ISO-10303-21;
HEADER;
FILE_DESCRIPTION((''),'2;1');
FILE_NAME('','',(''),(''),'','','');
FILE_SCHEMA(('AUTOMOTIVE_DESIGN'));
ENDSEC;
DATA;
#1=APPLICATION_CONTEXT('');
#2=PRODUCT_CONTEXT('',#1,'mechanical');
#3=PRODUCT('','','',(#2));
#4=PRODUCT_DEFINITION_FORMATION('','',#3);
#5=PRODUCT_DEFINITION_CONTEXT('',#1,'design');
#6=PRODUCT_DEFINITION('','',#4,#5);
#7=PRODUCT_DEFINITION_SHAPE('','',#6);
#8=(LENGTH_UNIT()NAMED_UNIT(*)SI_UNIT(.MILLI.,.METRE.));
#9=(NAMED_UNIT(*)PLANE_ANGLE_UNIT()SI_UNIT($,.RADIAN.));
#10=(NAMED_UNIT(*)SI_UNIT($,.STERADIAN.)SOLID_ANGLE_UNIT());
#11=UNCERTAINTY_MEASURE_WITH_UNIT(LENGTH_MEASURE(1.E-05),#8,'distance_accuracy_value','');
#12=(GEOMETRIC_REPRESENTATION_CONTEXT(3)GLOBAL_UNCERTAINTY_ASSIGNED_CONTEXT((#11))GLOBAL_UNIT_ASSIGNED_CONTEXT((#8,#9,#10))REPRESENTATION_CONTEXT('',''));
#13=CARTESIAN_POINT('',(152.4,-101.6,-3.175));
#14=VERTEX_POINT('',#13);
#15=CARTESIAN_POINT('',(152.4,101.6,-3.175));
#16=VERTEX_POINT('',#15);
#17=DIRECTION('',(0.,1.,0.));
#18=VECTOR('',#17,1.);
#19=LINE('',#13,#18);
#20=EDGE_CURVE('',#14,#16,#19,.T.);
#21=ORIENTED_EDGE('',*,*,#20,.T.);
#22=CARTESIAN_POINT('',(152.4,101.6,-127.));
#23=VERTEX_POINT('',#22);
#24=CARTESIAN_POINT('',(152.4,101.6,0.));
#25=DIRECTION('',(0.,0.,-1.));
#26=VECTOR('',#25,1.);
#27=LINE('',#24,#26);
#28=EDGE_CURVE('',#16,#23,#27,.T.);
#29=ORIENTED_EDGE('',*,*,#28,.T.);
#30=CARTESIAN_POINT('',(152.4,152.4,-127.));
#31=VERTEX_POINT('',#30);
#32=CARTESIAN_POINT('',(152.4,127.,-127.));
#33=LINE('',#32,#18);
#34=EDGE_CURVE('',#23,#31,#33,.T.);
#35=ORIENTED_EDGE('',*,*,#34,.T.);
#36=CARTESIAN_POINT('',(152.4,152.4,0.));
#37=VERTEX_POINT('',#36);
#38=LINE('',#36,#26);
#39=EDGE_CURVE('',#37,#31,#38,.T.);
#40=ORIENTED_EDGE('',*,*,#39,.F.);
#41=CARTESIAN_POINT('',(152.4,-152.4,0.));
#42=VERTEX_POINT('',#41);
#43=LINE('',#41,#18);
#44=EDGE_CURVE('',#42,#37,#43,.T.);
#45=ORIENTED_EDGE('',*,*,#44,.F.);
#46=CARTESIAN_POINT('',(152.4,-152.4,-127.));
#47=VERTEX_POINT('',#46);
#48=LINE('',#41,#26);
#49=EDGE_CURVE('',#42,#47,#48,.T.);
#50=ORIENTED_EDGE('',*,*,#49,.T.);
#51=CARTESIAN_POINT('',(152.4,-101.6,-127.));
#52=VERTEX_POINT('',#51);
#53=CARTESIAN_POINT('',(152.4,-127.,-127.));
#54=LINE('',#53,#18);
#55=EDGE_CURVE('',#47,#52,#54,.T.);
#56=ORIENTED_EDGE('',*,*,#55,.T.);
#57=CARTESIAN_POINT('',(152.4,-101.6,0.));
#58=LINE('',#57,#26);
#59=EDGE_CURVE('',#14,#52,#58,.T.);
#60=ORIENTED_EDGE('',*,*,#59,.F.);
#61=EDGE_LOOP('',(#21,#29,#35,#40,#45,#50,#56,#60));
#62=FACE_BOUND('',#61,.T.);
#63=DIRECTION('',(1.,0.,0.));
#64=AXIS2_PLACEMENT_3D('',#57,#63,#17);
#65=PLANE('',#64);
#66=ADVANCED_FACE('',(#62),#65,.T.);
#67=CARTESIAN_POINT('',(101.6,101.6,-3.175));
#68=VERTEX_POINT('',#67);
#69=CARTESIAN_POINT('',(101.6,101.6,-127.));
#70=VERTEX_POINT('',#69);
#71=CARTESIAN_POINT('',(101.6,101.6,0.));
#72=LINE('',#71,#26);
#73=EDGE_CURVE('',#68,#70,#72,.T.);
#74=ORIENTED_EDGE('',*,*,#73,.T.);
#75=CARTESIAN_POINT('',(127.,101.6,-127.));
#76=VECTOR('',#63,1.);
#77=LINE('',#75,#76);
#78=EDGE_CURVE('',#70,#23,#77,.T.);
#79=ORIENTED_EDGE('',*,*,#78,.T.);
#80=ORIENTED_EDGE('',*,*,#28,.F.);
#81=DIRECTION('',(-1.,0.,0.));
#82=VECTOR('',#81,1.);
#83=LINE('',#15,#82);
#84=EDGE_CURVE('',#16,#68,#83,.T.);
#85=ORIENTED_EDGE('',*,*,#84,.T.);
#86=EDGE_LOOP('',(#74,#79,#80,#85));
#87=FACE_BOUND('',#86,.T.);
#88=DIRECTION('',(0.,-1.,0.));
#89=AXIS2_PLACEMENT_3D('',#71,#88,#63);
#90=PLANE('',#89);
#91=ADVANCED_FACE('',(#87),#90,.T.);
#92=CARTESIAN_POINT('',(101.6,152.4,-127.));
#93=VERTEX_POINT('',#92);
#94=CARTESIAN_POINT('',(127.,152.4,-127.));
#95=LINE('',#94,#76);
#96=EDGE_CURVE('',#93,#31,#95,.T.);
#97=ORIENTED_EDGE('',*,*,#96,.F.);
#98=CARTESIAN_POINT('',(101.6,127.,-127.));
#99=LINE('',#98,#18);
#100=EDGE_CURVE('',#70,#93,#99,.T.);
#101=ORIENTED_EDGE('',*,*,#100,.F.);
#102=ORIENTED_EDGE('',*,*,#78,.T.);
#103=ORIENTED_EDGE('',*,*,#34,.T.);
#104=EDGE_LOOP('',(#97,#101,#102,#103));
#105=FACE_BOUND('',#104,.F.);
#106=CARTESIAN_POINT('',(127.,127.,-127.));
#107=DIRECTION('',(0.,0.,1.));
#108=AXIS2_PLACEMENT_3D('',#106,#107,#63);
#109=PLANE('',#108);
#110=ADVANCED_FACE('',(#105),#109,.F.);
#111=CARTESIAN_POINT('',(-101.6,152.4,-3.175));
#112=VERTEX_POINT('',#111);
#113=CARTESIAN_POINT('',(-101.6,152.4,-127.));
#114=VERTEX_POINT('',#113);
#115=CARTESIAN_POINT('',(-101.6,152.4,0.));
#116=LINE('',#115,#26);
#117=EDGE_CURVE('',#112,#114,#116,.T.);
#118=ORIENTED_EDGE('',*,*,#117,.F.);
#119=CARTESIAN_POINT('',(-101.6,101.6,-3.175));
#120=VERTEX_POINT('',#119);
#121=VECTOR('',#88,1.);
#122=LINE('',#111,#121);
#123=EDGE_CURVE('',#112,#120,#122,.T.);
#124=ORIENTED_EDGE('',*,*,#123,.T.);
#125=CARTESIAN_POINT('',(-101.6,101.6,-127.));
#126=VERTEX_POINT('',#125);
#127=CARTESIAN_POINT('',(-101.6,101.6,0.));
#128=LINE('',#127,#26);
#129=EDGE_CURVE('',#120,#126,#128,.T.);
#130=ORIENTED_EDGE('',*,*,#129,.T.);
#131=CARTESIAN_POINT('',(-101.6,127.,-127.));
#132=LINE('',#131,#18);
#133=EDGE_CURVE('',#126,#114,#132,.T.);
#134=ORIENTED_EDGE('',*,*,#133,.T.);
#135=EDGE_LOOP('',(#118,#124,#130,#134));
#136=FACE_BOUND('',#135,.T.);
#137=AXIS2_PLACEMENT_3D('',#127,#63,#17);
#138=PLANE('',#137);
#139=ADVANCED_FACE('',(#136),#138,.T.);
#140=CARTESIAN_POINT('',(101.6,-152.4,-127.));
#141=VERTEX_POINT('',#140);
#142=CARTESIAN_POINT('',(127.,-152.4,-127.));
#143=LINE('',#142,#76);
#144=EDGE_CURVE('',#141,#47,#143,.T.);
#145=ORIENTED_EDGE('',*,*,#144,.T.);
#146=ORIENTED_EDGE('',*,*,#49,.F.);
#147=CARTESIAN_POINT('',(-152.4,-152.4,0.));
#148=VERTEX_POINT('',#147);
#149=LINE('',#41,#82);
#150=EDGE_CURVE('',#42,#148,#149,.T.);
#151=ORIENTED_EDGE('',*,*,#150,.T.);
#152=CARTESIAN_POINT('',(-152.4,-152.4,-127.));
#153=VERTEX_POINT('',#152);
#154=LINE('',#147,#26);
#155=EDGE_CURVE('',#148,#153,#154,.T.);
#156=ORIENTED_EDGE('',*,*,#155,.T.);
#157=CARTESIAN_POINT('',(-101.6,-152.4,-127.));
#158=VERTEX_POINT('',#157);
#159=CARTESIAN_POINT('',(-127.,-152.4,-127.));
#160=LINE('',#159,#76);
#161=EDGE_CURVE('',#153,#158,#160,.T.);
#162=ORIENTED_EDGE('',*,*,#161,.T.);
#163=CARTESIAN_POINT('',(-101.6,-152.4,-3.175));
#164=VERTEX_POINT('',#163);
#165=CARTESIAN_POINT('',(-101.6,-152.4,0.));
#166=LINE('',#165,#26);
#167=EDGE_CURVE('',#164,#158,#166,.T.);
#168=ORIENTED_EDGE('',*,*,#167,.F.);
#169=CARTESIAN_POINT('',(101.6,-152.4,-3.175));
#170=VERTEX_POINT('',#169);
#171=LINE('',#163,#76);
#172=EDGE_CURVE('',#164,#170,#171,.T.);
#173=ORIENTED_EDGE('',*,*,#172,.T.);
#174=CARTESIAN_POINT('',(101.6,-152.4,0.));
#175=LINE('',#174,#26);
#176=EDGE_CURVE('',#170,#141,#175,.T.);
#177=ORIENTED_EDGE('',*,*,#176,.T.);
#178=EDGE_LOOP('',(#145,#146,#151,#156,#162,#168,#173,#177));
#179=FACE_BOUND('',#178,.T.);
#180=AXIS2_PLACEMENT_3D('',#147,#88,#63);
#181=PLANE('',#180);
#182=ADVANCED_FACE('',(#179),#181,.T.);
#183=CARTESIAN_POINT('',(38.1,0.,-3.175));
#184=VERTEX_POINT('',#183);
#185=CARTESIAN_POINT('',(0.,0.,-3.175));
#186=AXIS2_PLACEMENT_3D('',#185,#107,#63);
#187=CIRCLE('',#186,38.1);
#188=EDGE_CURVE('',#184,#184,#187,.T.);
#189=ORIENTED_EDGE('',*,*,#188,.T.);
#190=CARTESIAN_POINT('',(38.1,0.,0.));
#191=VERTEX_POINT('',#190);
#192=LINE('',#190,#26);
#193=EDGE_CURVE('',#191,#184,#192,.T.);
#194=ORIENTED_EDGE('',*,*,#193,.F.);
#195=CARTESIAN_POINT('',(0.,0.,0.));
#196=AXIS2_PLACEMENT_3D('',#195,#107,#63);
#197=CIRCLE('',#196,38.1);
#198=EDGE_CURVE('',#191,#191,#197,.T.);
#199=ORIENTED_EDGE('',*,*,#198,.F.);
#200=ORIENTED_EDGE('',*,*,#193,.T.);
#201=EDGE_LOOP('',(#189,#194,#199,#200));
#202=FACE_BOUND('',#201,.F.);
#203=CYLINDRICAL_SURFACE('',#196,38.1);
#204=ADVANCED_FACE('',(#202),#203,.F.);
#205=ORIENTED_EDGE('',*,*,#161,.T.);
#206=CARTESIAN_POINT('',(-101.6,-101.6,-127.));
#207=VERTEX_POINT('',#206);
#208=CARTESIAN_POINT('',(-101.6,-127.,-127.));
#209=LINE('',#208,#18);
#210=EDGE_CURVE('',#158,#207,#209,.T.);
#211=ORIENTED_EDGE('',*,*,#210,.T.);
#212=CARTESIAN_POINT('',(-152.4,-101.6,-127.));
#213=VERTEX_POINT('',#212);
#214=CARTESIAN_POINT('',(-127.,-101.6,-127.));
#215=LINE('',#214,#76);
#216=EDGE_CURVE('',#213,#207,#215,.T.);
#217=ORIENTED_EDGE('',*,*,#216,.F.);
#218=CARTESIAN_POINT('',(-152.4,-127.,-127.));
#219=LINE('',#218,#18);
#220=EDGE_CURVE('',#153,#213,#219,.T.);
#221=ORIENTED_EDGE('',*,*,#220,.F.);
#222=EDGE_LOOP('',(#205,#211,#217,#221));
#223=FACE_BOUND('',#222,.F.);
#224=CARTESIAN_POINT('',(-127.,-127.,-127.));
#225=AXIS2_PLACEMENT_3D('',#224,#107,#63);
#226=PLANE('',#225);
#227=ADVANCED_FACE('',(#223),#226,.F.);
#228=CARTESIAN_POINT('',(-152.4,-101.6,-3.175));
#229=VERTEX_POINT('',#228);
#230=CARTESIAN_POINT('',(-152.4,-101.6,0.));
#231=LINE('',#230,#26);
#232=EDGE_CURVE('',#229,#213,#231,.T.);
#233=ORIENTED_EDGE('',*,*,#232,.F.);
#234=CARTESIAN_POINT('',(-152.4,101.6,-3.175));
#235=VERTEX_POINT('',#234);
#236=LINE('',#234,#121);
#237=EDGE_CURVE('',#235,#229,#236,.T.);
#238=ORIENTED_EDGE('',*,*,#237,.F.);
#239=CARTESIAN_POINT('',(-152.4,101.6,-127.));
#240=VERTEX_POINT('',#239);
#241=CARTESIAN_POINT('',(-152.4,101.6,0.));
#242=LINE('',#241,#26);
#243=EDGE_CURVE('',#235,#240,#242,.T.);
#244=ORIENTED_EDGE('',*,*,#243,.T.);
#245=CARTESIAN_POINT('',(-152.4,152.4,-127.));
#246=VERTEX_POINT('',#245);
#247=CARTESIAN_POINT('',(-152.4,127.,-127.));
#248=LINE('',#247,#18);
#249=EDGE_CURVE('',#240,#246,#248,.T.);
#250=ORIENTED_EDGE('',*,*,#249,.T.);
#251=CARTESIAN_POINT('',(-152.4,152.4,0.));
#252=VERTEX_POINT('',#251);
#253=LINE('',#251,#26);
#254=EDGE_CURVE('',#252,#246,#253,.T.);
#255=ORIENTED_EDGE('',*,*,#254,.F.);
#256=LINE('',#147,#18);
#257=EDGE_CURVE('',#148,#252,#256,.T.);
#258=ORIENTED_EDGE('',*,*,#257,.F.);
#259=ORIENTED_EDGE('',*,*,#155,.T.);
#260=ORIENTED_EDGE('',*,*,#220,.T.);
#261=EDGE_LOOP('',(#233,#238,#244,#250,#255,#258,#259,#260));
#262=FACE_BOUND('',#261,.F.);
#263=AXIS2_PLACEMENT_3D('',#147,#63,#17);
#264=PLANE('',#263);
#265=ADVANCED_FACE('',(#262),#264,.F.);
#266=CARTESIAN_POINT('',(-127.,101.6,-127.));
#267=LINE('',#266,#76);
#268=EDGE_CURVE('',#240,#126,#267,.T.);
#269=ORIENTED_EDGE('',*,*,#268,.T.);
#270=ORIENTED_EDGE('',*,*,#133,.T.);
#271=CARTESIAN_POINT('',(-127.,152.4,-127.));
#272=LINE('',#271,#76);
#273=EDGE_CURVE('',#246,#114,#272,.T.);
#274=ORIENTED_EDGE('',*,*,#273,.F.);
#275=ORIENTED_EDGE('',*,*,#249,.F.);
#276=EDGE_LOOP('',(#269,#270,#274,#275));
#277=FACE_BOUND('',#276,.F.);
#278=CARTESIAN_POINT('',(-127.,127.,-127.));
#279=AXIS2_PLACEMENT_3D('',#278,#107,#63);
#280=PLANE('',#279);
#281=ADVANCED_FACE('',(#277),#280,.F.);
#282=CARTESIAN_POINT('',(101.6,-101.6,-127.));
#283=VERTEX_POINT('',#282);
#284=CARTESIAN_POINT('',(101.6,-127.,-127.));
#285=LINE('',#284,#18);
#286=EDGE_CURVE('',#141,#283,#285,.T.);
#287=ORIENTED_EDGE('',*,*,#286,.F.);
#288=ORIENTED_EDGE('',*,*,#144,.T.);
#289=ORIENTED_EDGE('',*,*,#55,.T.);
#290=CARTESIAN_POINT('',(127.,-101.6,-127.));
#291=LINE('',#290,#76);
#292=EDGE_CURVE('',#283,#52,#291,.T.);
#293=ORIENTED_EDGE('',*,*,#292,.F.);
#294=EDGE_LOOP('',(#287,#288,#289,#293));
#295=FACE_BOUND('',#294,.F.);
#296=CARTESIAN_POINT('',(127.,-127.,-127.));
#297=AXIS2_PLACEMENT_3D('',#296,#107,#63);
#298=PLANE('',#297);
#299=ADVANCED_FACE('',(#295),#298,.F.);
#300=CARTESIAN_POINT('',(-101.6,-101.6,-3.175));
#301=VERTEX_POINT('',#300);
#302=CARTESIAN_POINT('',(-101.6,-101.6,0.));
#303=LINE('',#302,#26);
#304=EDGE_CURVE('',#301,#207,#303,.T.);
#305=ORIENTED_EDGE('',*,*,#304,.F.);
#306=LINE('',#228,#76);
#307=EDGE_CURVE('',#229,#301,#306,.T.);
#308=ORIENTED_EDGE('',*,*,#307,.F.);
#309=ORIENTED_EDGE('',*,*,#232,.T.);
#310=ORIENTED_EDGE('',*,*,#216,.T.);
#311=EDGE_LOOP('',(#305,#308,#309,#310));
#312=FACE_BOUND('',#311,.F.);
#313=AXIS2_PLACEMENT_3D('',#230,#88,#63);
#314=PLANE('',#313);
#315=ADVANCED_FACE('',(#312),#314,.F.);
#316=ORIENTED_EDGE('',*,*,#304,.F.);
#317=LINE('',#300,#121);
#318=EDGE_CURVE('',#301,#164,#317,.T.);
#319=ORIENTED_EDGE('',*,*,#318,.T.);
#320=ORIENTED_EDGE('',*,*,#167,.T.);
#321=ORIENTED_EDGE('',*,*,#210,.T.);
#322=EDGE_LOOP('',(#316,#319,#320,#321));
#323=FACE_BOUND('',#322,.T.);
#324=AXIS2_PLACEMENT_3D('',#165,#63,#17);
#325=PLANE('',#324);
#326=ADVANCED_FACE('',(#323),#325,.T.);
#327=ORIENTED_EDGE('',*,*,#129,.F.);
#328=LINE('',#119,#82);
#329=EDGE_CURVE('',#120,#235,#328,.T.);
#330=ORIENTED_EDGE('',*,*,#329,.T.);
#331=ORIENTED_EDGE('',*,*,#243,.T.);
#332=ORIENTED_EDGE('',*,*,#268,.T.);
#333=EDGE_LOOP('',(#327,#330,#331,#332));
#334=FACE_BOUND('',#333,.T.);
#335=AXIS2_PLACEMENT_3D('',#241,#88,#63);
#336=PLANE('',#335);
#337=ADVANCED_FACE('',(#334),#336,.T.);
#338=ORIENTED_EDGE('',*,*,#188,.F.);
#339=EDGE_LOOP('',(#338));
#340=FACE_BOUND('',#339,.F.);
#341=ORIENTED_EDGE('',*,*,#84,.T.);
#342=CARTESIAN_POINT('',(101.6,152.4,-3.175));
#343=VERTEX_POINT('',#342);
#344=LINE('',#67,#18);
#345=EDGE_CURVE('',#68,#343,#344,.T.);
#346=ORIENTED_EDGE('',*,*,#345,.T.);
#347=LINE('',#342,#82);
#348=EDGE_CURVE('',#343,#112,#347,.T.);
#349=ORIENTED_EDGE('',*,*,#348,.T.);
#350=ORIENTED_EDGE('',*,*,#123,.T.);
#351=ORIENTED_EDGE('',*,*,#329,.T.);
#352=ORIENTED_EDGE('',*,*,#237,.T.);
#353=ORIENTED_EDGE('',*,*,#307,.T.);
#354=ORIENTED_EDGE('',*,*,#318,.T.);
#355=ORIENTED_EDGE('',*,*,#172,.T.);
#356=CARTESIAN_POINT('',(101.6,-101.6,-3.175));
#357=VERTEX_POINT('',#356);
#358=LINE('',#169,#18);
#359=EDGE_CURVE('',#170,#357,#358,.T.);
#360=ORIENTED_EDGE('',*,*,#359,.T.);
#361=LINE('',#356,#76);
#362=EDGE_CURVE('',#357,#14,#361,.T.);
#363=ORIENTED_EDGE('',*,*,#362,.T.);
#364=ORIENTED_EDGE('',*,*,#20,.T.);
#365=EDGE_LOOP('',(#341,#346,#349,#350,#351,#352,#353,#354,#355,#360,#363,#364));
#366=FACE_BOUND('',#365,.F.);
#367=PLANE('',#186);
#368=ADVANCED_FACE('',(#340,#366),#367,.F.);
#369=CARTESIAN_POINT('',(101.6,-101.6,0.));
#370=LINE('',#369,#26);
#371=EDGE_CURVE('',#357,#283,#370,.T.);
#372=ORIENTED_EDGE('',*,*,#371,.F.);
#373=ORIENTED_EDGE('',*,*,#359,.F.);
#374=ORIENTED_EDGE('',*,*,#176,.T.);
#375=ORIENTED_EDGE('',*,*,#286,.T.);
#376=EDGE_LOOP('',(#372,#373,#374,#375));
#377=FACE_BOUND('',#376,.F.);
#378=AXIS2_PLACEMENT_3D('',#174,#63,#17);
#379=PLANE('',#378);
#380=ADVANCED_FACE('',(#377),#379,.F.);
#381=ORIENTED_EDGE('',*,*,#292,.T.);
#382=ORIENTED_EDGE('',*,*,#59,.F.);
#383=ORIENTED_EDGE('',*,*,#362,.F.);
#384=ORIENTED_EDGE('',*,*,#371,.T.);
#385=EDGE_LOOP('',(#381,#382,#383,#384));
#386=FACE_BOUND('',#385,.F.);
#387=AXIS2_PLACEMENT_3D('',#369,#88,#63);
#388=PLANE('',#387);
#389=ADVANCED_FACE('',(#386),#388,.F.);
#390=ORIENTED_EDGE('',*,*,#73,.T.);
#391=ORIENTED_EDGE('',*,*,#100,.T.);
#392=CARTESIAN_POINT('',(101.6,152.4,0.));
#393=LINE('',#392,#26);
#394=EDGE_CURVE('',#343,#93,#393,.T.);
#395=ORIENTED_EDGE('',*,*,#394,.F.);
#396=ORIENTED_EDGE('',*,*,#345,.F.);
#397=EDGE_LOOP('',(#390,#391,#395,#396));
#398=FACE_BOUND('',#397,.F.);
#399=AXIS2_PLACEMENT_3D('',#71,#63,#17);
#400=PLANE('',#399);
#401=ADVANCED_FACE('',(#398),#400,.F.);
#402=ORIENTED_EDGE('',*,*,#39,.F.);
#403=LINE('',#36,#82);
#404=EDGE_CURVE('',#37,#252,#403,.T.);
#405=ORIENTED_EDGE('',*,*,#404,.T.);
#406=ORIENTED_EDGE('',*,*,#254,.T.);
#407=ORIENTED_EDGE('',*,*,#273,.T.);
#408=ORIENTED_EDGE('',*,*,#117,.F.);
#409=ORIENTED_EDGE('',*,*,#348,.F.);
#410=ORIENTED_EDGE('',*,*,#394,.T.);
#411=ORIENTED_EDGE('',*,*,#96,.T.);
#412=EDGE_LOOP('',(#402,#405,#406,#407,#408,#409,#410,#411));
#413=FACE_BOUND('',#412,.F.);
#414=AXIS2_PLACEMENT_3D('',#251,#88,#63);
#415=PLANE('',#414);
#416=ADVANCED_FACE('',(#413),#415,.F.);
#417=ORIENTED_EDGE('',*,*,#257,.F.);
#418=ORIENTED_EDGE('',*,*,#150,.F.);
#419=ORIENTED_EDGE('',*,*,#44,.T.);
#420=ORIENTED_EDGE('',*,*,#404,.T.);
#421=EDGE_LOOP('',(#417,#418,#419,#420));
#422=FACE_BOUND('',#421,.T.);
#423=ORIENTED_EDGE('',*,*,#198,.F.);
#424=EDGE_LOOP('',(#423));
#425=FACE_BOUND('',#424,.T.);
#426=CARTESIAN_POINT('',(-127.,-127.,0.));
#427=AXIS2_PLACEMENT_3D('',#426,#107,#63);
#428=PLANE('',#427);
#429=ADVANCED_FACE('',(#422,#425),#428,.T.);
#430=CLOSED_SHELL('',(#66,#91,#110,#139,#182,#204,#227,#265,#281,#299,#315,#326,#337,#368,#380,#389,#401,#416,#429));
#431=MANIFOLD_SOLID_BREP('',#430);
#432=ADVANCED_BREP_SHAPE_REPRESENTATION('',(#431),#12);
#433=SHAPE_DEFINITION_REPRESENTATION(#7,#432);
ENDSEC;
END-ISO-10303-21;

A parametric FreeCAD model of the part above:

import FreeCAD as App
import Part
import Sketcher

V = App.Vector
Q = App.Units.Quantity

doc = App.newDocument("Part")
body = doc.addObject("PartDesign::Body", "Body")

# Sketch on XY plane
sketch1 = body.newObject("Sketcher::SketchObject", "Sketch")
sketch1.AttachmentSupport = (doc.getObject("XY_Plane"), [""])
sketch1.MapMode = "FlatFace"
sketch1.addGeometry([
    Part.LineSegment(V(-102, -152, 0), V(102, -152, 0)),  # 0
    Part.LineSegment(V(102, -152, 0), V(102, -102, 0)),  # 1
    Part.LineSegment(V(102, -102, 0), V(152, -102, 0)),  # 2
    Part.LineSegment(V(152, -102, 0), V(152, 102, 0)),  # 3
    Part.LineSegment(V(152, 102, 0), V(102, 102, 0)),  # 4
    Part.LineSegment(V(102, 102, 0), V(102, 152, 0)),  # 5
    Part.LineSegment(V(102, 152, 0), V(-102, 152, 0)),  # 6
    Part.LineSegment(V(-102, 152, 0), V(-102, 102, 0)),  # 7
    Part.LineSegment(V(-102, 102, 0), V(-152, 102, 0)),  # 8
    Part.LineSegment(V(-152, 102, 0), V(-152, -102, 0)),  # 9
    Part.LineSegment(V(-152, -102, 0), V(-102, -102, 0)),  # 10
    Part.LineSegment(V(-102, -102, 0), V(-102, -152, 0)),  # 11
    Part.Circle(V(0, 0, 0), V(0, 0, 1), 38),  # 12
], False)
sketch1.addConstraint([
    Sketcher.Constraint("Coincident", 0, 2, 1, 1),
    Sketcher.Constraint("Coincident", 1, 2, 2, 1),
    Sketcher.Constraint("Coincident", 2, 2, 3, 1),
    Sketcher.Constraint("Coincident", 3, 2, 4, 1),
    Sketcher.Constraint("Coincident", 4, 2, 5, 1),
    Sketcher.Constraint("Coincident", 5, 2, 6, 1),
    Sketcher.Constraint("Coincident", 6, 2, 7, 1),
    Sketcher.Constraint("Coincident", 7, 2, 8, 1),
    Sketcher.Constraint("Coincident", 8, 2, 9, 1),
    Sketcher.Constraint("Coincident", 9, 2, 10, 1),
    Sketcher.Constraint("Coincident", 10, 2, 11, 1),
    Sketcher.Constraint("Coincident", 11, 2, 0, 1),
    Sketcher.Constraint("Horizontal", 0),
    Sketcher.Constraint("Vertical", 1),
    Sketcher.Constraint("Horizontal", 2),
    Sketcher.Constraint("Vertical", 3),
    Sketcher.Constraint("Horizontal", 4),
    Sketcher.Constraint("Vertical", 5),
    Sketcher.Constraint("Horizontal", 6),
    Sketcher.Constraint("Vertical", 7),
    Sketcher.Constraint("Horizontal", 8),
    Sketcher.Constraint("Vertical", 9),
    Sketcher.Constraint("Horizontal", 10),
    Sketcher.Constraint("Vertical", 11),
    Sketcher.Constraint("Coincident", 12, 3, -1, 1),
    Sketcher.Constraint("Symmetric", 0, 2, 6, 2, -1, 1),
    Sketcher.Constraint("Symmetric", 2, 2, 8, 2, -1, 1),
    Sketcher.Constraint("Symmetric", 4, 2, 10, 2, -1, 1),
    Sketcher.Constraint("Symmetric", 4, 2, 7, 2, -2),
    Sketcher.Constraint("Equal", 10, 1),
    Sketcher.Constraint("Equal", 6, 3),
    Sketcher.Constraint("Diameter", 12, Q("3 in")),
    Sketcher.Constraint("DistanceX", 0, 1, 0, 2, Q("8 in")),
    Sketcher.Constraint("DistanceX", 2, 1, 2, 2, Q("2 in")),
])
pad1 = body.newObject("PartDesign::Pad", "Pad")
pad1.Profile = sketch1
pad1.Length = Q("0.125 in")
pad1.Reversed = True

# Sketch on XY plane
sketch2 = body.newObject("Sketcher::SketchObject", "Sketch001")
sketch2.AttachmentSupport = (doc.getObject("XY_Plane"), [""])
sketch2.MapMode = "FlatFace"
sketch2.addGeometry([
    Part.LineSegment(V(-152, -102, 0), V(-152, -152, 0)),  # 0
    Part.LineSegment(V(-152, -152, 0), V(-102, -152, 0)),  # 1
    Part.LineSegment(V(-102, -152, 0), V(-102, -102, 0)),  # 2
    Part.LineSegment(V(-102, -102, 0), V(-152, -102, 0)),  # 3
    Part.LineSegment(V(-152, 152, 0), V(-152, 102, 0)),  # 4
    Part.LineSegment(V(-152, 102, 0), V(-102, 102, 0)),  # 5
    Part.LineSegment(V(-102, 102, 0), V(-102, 152, 0)),  # 6
    Part.LineSegment(V(-102, 152, 0), V(-152, 152, 0)),  # 7
    Part.LineSegment(V(102, 152, 0), V(102, 102, 0)),  # 8
    Part.LineSegment(V(102, 102, 0), V(152, 102, 0)),  # 9
    Part.LineSegment(V(152, 102, 0), V(152, 152, 0)),  # 10
    Part.LineSegment(V(152, 152, 0), V(102, 152, 0)),  # 11
    Part.LineSegment(V(102, -102, 0), V(102, -152, 0)),  # 12
    Part.LineSegment(V(102, -152, 0), V(152, -152, 0)),  # 13
    Part.LineSegment(V(152, -152, 0), V(152, -102, 0)),  # 14
    Part.LineSegment(V(152, -102, 0), V(102, -102, 0)),  # 15
], False)
sketch2.addConstraint([
    Sketcher.Constraint("Coincident", 0, 2, 1, 1),
    Sketcher.Constraint("Coincident", 1, 2, 2, 1),
    Sketcher.Constraint("Coincident", 2, 2, 3, 1),
    Sketcher.Constraint("Coincident", 3, 2, 0, 1),
    Sketcher.Constraint("Coincident", 4, 2, 5, 1),
    Sketcher.Constraint("Coincident", 5, 2, 6, 1),
    Sketcher.Constraint("Coincident", 6, 2, 7, 1),
    Sketcher.Constraint("Coincident", 7, 2, 4, 1),
    Sketcher.Constraint("Coincident", 8, 2, 9, 1),
    Sketcher.Constraint("Coincident", 9, 2, 10, 1),
    Sketcher.Constraint("Coincident", 10, 2, 11, 1),
    Sketcher.Constraint("Coincident", 11, 2, 8, 1),
    Sketcher.Constraint("Coincident", 12, 2, 13, 1),
    Sketcher.Constraint("Coincident", 13, 2, 14, 1),
    Sketcher.Constraint("Coincident", 14, 2, 15, 1),
    Sketcher.Constraint("Coincident", 15, 2, 12, 1),
    Sketcher.Constraint("Vertical", 0),
    Sketcher.Constraint("Horizontal", 1),
    Sketcher.Constraint("Vertical", 2),
    Sketcher.Constraint("Horizontal", 3),
    Sketcher.Constraint("Vertical", 4),
    Sketcher.Constraint("Horizontal", 5),
    Sketcher.Constraint("Vertical", 6),
    Sketcher.Constraint("Horizontal", 7),
    Sketcher.Constraint("Vertical", 8),
    Sketcher.Constraint("Horizontal", 9),
    Sketcher.Constraint("Vertical", 10),
    Sketcher.Constraint("Horizontal", 11),
    Sketcher.Constraint("Vertical", 12),
    Sketcher.Constraint("Horizontal", 13),
    Sketcher.Constraint("Vertical", 14),
    Sketcher.Constraint("Horizontal", 15),
    Sketcher.Constraint("Symmetric", 2, 2, 8, 2, -1, 1),
    Sketcher.Constraint("Symmetric", 0, 2, 10, 2, -1, 1),
    Sketcher.Constraint("Symmetric", 6, 2, 12, 2, -1, 1),
    Sketcher.Constraint("Symmetric", 4, 2, 14, 2, -1, 1),
    Sketcher.Constraint("Symmetric", 5, 2, 8, 2, -2),
    Sketcher.Constraint("Symmetric", 7, 2, 10, 2, -2),
    Sketcher.Constraint("Equal", 15, 0),
    Sketcher.Constraint("DistanceX", 1, 1, 1, 2, Q("2 in")),
    Sketcher.Constraint("DistanceX", 0, 2, -1, 1, Q("6 in")),
    Sketcher.Constraint("DistanceY", 0, 2, -1, 1, Q("6 in")),
])
pad2 = body.newObject("PartDesign::Pad", "Pad001")
pad2.Profile = sketch2
pad2.Length = Q("5 in")
pad2.Reversed = True

doc.recompute()
